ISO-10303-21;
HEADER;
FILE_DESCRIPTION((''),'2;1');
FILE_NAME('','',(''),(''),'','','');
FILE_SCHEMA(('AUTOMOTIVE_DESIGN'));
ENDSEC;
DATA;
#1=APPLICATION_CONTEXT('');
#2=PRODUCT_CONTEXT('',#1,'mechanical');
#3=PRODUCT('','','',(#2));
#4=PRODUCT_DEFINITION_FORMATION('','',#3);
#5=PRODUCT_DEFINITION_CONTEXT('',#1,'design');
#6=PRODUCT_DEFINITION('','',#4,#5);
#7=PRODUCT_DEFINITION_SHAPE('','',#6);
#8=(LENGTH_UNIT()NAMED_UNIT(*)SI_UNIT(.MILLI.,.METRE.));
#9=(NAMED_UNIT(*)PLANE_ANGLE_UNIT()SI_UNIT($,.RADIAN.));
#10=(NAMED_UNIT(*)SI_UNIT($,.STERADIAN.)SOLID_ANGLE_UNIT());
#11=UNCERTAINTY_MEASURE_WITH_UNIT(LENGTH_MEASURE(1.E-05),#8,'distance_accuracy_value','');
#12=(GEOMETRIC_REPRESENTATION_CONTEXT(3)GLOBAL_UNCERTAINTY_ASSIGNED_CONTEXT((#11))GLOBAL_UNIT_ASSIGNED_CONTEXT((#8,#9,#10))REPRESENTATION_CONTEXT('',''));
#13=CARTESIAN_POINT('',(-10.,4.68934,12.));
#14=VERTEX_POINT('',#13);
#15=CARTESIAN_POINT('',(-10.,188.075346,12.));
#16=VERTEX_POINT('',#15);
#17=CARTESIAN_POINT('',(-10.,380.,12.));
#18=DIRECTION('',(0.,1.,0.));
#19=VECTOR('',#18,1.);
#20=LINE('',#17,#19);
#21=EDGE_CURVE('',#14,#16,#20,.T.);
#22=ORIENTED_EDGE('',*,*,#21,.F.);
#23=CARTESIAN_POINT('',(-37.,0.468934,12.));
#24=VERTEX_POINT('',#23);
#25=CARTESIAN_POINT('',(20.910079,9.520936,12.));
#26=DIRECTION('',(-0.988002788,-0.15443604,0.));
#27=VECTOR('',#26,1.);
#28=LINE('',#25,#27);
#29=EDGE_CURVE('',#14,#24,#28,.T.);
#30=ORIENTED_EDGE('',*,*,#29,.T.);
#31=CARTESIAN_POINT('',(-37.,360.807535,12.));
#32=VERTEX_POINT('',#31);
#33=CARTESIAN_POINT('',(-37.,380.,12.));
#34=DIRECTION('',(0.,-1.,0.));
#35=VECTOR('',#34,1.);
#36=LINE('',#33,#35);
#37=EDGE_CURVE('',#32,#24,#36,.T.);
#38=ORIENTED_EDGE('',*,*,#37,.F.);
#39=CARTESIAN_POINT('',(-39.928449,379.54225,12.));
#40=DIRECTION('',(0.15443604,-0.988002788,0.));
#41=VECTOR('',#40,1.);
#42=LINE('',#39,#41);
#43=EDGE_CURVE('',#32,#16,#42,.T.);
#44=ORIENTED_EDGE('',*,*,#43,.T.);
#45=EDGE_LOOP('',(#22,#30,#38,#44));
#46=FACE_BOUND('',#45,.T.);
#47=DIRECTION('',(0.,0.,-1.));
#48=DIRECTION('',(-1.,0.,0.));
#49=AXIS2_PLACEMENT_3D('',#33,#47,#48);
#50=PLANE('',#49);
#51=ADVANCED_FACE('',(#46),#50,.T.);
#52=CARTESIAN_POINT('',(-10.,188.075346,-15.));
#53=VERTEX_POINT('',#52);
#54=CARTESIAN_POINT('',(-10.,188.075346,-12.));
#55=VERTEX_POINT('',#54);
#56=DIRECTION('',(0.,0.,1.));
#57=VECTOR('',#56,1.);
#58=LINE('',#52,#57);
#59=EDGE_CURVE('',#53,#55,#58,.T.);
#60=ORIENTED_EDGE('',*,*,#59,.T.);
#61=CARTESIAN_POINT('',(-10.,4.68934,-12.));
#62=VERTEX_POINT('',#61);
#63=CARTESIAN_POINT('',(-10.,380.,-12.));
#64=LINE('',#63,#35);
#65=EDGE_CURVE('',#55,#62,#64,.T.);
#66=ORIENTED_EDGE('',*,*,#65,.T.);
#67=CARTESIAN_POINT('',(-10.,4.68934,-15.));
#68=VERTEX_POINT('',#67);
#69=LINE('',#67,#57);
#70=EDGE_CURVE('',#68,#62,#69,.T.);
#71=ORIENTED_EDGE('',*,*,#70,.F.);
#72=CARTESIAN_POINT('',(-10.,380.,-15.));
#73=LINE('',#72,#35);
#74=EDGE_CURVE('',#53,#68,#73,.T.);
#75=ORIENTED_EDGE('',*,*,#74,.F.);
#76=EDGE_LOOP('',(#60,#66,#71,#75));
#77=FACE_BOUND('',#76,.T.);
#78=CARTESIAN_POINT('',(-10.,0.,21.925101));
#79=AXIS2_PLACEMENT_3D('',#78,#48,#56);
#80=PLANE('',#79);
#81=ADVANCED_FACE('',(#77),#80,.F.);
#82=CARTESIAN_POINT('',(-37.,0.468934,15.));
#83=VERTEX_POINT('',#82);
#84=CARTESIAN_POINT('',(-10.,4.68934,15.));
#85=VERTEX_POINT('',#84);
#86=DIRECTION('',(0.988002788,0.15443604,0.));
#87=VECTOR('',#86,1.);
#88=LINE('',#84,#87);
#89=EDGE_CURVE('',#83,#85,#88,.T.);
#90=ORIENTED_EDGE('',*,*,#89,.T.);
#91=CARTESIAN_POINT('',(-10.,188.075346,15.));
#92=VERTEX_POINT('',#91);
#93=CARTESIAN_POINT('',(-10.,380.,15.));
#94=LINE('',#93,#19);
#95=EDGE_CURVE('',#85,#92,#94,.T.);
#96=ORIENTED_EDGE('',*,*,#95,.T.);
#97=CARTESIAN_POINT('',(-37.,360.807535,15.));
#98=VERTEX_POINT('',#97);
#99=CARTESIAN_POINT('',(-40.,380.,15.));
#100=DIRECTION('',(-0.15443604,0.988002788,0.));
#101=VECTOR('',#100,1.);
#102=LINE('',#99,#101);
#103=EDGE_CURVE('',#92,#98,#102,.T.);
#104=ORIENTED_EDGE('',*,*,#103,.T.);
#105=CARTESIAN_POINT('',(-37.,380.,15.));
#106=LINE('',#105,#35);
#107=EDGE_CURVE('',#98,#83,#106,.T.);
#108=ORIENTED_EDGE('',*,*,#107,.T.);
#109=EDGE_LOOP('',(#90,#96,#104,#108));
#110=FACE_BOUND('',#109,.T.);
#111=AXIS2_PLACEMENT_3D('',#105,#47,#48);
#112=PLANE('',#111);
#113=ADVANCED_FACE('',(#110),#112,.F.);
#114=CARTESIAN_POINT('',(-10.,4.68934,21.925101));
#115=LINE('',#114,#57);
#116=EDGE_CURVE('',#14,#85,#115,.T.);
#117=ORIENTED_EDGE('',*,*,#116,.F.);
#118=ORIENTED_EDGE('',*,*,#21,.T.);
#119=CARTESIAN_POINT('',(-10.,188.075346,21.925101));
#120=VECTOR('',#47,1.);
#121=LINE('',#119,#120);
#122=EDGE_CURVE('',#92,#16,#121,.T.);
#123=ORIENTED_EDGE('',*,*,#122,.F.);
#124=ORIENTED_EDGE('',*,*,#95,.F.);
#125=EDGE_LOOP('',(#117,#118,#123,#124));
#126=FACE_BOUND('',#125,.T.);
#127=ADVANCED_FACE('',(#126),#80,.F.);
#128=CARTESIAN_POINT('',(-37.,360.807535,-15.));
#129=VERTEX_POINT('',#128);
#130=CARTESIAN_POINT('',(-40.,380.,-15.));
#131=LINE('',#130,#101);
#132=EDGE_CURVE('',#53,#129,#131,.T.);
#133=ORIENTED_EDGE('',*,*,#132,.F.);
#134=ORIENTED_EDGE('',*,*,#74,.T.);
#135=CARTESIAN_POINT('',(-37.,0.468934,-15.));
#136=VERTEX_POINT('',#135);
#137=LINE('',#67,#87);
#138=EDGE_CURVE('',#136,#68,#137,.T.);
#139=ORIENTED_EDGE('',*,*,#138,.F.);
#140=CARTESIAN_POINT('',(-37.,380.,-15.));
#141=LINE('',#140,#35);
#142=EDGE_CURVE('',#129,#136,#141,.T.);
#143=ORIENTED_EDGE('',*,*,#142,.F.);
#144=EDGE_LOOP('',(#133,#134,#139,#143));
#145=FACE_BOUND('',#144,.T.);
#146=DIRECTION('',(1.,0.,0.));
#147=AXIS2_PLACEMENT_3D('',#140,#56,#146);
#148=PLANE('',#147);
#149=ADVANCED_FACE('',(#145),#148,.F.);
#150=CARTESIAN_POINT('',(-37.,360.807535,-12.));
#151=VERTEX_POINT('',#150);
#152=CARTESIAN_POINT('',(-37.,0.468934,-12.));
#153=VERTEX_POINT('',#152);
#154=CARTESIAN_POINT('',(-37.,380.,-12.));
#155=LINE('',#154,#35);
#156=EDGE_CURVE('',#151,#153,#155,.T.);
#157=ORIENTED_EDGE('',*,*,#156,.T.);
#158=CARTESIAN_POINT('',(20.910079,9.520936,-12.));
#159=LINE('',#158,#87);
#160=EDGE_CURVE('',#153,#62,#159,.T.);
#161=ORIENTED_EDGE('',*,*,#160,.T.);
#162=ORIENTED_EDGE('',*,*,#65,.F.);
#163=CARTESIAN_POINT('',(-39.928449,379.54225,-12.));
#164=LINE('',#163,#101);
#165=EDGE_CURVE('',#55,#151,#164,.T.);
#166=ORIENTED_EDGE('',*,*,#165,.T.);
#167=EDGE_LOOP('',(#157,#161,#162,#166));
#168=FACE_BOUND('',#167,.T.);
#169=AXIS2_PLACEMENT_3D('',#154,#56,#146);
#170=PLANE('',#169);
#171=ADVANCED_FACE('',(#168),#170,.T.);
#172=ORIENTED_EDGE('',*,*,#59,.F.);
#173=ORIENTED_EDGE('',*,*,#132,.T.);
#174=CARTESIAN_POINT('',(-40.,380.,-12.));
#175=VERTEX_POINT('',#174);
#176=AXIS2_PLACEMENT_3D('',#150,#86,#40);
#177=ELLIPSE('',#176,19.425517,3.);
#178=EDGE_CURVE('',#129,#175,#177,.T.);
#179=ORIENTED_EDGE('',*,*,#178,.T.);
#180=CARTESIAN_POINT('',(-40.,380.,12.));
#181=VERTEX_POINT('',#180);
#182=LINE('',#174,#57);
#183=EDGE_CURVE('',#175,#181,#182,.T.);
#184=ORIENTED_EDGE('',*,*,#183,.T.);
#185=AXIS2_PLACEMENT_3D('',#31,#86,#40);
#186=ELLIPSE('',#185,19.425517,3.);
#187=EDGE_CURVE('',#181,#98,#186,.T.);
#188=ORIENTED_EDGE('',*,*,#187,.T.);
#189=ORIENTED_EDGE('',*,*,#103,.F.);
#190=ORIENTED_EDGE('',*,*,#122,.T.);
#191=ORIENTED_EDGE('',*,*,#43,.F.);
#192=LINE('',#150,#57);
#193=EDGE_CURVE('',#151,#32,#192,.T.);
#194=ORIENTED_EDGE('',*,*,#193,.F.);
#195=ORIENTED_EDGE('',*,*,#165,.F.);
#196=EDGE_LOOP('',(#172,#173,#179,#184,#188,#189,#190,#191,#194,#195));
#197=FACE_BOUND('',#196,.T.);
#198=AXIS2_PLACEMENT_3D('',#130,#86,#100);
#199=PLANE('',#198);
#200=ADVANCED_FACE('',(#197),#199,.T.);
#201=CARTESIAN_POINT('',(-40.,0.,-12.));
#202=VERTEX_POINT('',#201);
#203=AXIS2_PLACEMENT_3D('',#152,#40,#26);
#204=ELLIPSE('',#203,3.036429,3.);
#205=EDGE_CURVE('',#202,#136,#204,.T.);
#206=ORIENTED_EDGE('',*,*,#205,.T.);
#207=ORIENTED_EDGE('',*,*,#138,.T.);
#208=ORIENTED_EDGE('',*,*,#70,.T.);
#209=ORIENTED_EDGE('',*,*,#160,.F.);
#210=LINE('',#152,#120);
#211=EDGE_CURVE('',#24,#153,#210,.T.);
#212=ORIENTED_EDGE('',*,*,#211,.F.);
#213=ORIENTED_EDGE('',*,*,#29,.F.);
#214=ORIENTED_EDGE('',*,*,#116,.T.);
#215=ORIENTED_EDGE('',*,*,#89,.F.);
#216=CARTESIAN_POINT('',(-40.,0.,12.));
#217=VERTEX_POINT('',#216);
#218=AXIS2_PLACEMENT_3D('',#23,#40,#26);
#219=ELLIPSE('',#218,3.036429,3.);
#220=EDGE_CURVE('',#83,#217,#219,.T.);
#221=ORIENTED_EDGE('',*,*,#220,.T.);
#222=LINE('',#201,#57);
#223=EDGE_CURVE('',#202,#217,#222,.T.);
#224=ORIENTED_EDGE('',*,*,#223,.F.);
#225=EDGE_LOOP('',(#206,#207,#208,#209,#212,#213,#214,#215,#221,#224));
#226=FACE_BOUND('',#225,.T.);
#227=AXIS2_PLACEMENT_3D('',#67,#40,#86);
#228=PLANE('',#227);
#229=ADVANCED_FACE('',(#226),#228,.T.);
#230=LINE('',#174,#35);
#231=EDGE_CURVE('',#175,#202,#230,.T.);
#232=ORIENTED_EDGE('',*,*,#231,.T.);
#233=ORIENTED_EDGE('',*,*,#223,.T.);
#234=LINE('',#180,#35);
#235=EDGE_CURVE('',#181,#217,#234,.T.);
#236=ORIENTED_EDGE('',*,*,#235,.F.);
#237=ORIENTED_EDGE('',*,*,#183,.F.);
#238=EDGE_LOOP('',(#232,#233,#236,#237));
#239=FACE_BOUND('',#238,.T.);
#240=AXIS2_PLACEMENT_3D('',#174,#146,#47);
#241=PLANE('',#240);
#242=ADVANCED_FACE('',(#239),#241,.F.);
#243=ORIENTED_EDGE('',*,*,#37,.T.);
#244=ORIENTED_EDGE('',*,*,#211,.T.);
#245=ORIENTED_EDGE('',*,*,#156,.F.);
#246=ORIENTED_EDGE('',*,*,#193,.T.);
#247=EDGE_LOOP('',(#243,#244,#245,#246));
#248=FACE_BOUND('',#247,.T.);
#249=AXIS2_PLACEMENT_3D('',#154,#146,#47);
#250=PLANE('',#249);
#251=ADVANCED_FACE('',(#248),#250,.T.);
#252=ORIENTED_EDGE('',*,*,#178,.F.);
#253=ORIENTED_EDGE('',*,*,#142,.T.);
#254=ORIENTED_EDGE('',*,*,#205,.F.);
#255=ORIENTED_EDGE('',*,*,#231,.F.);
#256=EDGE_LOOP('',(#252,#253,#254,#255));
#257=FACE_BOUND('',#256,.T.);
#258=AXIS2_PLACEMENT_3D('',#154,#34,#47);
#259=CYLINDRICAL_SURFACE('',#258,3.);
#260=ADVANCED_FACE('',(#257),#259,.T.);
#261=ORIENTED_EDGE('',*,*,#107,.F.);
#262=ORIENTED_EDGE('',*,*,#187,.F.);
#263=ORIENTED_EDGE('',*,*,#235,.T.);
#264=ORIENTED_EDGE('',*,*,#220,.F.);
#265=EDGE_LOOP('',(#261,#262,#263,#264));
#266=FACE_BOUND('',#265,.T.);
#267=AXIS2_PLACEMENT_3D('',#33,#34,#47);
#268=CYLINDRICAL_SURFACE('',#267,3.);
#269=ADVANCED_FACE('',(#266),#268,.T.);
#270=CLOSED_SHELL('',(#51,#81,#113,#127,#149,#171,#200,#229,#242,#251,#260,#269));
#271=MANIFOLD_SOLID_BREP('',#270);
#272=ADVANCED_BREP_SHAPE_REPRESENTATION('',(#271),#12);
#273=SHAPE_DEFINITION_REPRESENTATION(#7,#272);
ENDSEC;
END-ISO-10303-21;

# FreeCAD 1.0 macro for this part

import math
import FreeCAD as App
import Part
import Sketcher
from FreeCAD import Vector
Q = App.Units.Quantity

doc = App.newDocument("Part")
body = doc.addObject("PartDesign::Body", "Body")

# Sketch on XZ plane
sketch1 = doc.addObject("Sketcher::SketchObject", "Sketch")
body.addObject(sketch1)
sketch1.AttachmentSupport = (doc.XZ_Plane, [""])
sketch1.MapMode = "FlatFace"
sketch1.addGeometry(Part.LineSegment(Vector(40, 12, 0), Vector(40, -12, 0)), False)
sketch1.addGeometry(Part.ArcOfCircle(Part.Circle(Vector(37, -12, 0), Vector(0, 0, 1), 3), math.radians(-90), math.radians(0)), False)
sketch1.addGeometry(Part.LineSegment(Vector(37, -15, 0), Vector(-37, -15, 0)), False)
sketch1.addGeometry(Part.ArcOfCircle(Part.Circle(Vector(-37, -12, 0), Vector(0, 0, 1), 3), math.radians(180), math.radians(270)), False)
sketch1.addGeometry(Part.LineSegment(Vector(-40, -12, 0), Vector(-40, 12, 0)), False)
sketch1.addGeometry(Part.ArcOfCircle(Part.Circle(Vector(-37, 12, 0), Vector(0, 0, 1), 3), math.radians(90), math.radians(180)), False)
sketch1.addGeometry(Part.LineSegment(Vector(-37, 15, 0), Vector(37, 15, 0)), False)
sketch1.addGeometry(Part.ArcOfCircle(Part.Circle(Vector(37, 12, 0), Vector(0, 0, 1), 3), math.radians(0), math.radians(90)), False)
sketch1.addGeometry(Part.LineSegment(Vector(-37, 12, 0), Vector(-37, -12, 0)), False)
sketch1.addGeometry(Part.LineSegment(Vector(-37, -12, 0), Vector(37, -12, 0)), False)
sketch1.addGeometry(Part.LineSegment(Vector(37, -12, 0), Vector(37, 12, 0)), False)
sketch1.addGeometry(Part.LineSegment(Vector(37, 12, 0), Vector(-37, 12, 0)), False)
sketch1.addConstraint(Sketcher.Constraint("Tangent", 0, 2, 1, 2))
sketch1.addConstraint(Sketcher.Constraint("Tangent", 1, 1, 2, 1))
sketch1.addConstraint(Sketcher.Constraint("Tangent", 2, 2, 3, 2))
sketch1.addConstraint(Sketcher.Constraint("Tangent", 3, 1, 4, 1))
sketch1.addConstraint(Sketcher.Constraint("Tangent", 4, 2, 5, 2))
sketch1.addConstraint(Sketcher.Constraint("Tangent", 5, 1, 6, 1))
sketch1.addConstraint(Sketcher.Constraint("Tangent", 6, 2, 7, 2))
sketch1.addConstraint(Sketcher.Constraint("Tangent", 7, 1, 0, 1))
sketch1.addConstraint(Sketcher.Constraint("Coincident", 8, 2, 9, 1))
sketch1.addConstraint(Sketcher.Constraint("Coincident", 9, 2, 10, 1))
sketch1.addConstraint(Sketcher.Constraint("Coincident", 10, 2, 11, 1))
sketch1.addConstraint(Sketcher.Constraint("Coincident", 11, 2, 8, 1))
sketch1.addConstraint(Sketcher.Constraint("Vertical", 0))
sketch1.addConstraint(Sketcher.Constraint("Horizontal", 2))
sketch1.addConstraint(Sketcher.Constraint("Vertical", 4))
sketch1.addConstraint(Sketcher.Constraint("Horizontal", 6))
sketch1.addConstraint(Sketcher.Constraint("Vertical", 8))
sketch1.addConstraint(Sketcher.Constraint("Horizontal", 9))
sketch1.addConstraint(Sketcher.Constraint("Vertical", 10))
sketch1.addConstraint(Sketcher.Constraint("Horizontal", 11))
sketch1.addConstraint(Sketcher.Constraint("Coincident", 8, 2, 3, 3))
sketch1.addConstraint(Sketcher.Constraint("Coincident", 9, 2, 1, 3))
sketch1.addConstraint(Sketcher.Constraint("Coincident", 10, 2, 7, 3))
sketch1.addConstraint(Sketcher.Constraint("Equal", 3, 5))
sketch1.addConstraint(Sketcher.Constraint("Symmetric", 1, 3, 5, 3, -1, 1))
sketch1.addConstraint(Sketcher.Constraint("Radius", 1, Q("3 mm")))
sketch1.addConstraint(Sketcher.Constraint("DistanceX", 2, 2, 2, 1, Q("74 mm")))
sketch1.addConstraint(Sketcher.Constraint("DistanceY", 0, 2, 0, 1, Q("24 mm")))
pad1 = doc.addObject("PartDesign::Pad", "Pad")
body.addObject(pad1)
pad1.Profile = sketch1
pad1.Length = 380
pad1.Reversed = True

# Sketch on XZ plane
sketch2 = doc.addObject("Sketcher::SketchObject", "Sketch001")
body.addObject(sketch2)
sketch2.AttachmentSupport = (doc.XZ_Plane, [""])
sketch2.MapMode = "FlatFace"
sketch2.AttachmentOffset = App.Placement(Vector(0, 0, -380), App.Rotation())
sketch2.addGeometry(Part.LineSegment(Vector(-10, -21, 0), Vector(-10, 22, 0)), False)
sketch2.addGeometry(Part.LineSegment(Vector(-10, 22, 0), Vector(41, 22, 0)), False)
sketch2.addGeometry(Part.LineSegment(Vector(41, 22, 0), Vector(41, -21, 0)), False)
sketch2.addGeometry(Part.LineSegment(Vector(41, -21, 0), Vector(-10, -21, 0)), False)
sketch2.addConstraint(Sketcher.Constraint("Coincident", 0, 2, 1, 1))
sketch2.addConstraint(Sketcher.Constraint("Coincident", 1, 2, 2, 1))
sketch2.addConstraint(Sketcher.Constraint("Coincident", 2, 2, 3, 1))
sketch2.addConstraint(Sketcher.Constraint("Coincident", 3, 2, 0, 1))
sketch2.addConstraint(Sketcher.Constraint("Vertical", 0))
sketch2.addConstraint(Sketcher.Constraint("Horizontal", 1))
sketch2.addConstraint(Sketcher.Constraint("Vertical", 2))
sketch2.addConstraint(Sketcher.Constraint("Horizontal", 3))
sketch2.addConstraint(Sketcher.Constraint("DistanceX", 0, 2, -1, 1, Q("10 mm")))
sketch2.addConstraint(Sketcher.Constraint("DistanceX", 1, 1, 1, 2, Q("51.14648 mm")))
sketch2.addConstraint(Sketcher.Constraint("DistanceY", -1, 1, 0, 2, Q("21.925101 mm")))
sketch2.addConstraint(Sketcher.Constraint("DistanceY", 0, 1, 0, 2, Q("42.897875 mm")))
pocket1 = doc.addObject("PartDesign::Pocket", "Pocket")
body.addObject(pocket1)
pocket1.Profile = sketch2
pocket1.Type = "ThroughAll"
pocket1.Reversed = True

# Sketch on XY plane
sketch3 = doc.addObject("Sketcher::SketchObject", "Sketch002")
body.addObject(sketch3)
sketch3.AttachmentSupport = (doc.XY_Plane, [""])
sketch3.MapMode = "FlatFace"
sketch3.AttachmentOffset = App.Placement(Vector(0, 0, 15), App.Rotation())
sketch3.addGeometry(Part.LineSegment(Vector(-79, 419, 0), Vector(-79, -39, 0)), False)
sketch3.addGeometry(Part.LineSegment(Vector(-79, -39, 0), Vector(29, -39, 0)), False)
sketch3.addGeometry(Part.LineSegment(Vector(29, -39, 0), Vector(29, 419, 0)), False)
sketch3.addGeometry(Part.LineSegment(Vector(29, 419, 0), Vector(-79, 419, 0)), False)
sketch3.addGeometry(Part.LineSegment(Vector(-40, 0, 0), Vector(-40, 380, 0)), False)
sketch3.addGeometry(Part.LineSegment(Vector(-40, 380, 0), Vector(-10, 188, 0)), False)
sketch3.addGeometry(Part.LineSegment(Vector(-10, 188, 0), Vector(-10, 5, 0)), False)
sketch3.addGeometry(Part.LineSegment(Vector(-10, 5, 0), Vector(-40, 0, 0)), False)
sketch3.addConstraint(Sketcher.Constraint("Coincident", 0, 2, 1, 1))
sketch3.addConstraint(Sketcher.Constraint("Coincident", 1, 2, 2, 1))
sketch3.addConstraint(Sketcher.Constraint("Coincident", 2, 2, 3, 1))
sketch3.addConstraint(Sketcher.Constraint("Coincident", 3, 2, 0, 1))
sketch3.addConstraint(Sketcher.Constraint("Coincident", 4, 2, 5, 1))
sketch3.addConstraint(Sketcher.Constraint("Coincident", 5, 2, 6, 1))
sketch3.addConstraint(Sketcher.Constraint("Coincident", 6, 2, 7, 1))
sketch3.addConstraint(Sketcher.Constraint("Coincident", 7, 2, 4, 1))
sketch3.addConstraint(Sketcher.Constraint("Vertical", 0))
sketch3.addConstraint(Sketcher.Constraint("Horizontal", 1))
sketch3.addConstraint(Sketcher.Constraint("Vertical", 2))
sketch3.addConstraint(Sketcher.Constraint("Horizontal", 3))
sketch3.addConstraint(Sketcher.Constraint("Vertical", 4))
sketch3.addConstraint(Sketcher.Constraint("Vertical", 6))
sketch3.addConstraint(Sketcher.Constraint("PointOnObject", 7, 2, -1))
sketch3.addConstraint(Sketcher.Constraint("Perpendicular", 5, 7))
sketch3.addConstraint(Sketcher.Constraint("DistanceY", 4, 1, 4, 2, Q("380 mm")))
sketch3.addConstraint(Sketcher.Constraint("DistanceX", 4, 2, -1, 1, Q("40 mm")))
sketch3.addConstraint(Sketcher.Constraint("DistanceX", 5, 2, -1, 1, Q("10 mm")))
sketch3.addConstraint(Sketcher.Constraint("DistanceX", 1, 1, 1, 2, Q("108.472 mm")))
sketch3.addConstraint(Sketcher.Constraint("DistanceY", 0, 2, 0, 1, Q("458.472 mm")))
sketch3.addConstraint(Sketcher.Constraint("DistanceX", 0, 2, -1, 1, Q("79.236 mm")))
sketch3.addConstraint(Sketcher.Constraint("DistanceY", 0, 2, -1, 1, Q("39.236 mm")))
sketch3.addConstraint(Sketcher.Constraint("DistanceY", 6, 2, 6, 1, Q("183.386006 mm")))
pocket2 = doc.addObject("PartDesign::Pocket", "Pocket001")
body.addObject(pocket2)
pocket2.Profile = sketch3
pocket2.Type = "ThroughAll"

doc.recompute()
